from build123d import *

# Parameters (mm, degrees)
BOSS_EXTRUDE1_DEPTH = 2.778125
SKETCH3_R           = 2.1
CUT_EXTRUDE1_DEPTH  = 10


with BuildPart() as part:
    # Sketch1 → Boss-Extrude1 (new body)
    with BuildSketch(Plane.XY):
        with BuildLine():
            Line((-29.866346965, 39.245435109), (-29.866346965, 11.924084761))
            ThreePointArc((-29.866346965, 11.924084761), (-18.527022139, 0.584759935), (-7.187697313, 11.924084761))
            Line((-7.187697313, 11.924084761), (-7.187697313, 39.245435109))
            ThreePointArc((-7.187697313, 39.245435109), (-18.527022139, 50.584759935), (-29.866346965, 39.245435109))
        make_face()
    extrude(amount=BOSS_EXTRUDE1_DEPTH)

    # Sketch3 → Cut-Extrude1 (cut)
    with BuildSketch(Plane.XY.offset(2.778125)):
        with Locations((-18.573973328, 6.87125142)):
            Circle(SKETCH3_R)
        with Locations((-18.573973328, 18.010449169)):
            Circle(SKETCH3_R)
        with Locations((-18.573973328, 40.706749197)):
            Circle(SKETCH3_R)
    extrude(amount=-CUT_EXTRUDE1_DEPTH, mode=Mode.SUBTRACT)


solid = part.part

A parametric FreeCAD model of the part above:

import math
import FreeCAD as App
import Part
import Sketcher

doc = App.newDocument("Part")
params = doc.addObject("Spreadsheet::Sheet", "Params")
for row, (alias, value) in enumerate([
    ("pad1_length", "2.778125 mm"),
    ("sketch2_diameter", "4.2 mm"),
    ("pocket1_length", "10 mm"),
], start=1):
    params.set(f"A{row}", alias)
    params.set(f"B{row}", "=" + value)
    params.setAlias(f"B{row}", alias)

body = doc.addObject("PartDesign::Body", "Body")

sketch1 = body.newObject("Sketcher::SketchObject", "Sketch")
sketch1.AttachmentSupport = (doc.getObject("XY_Plane"), [""])
sketch1.MapMode = "FlatFace"
sketch1.addGeometry([
    Part.LineSegment(App.Vector(-30, 39, 0), App.Vector(-30, 12, 0)),
    Part.ArcOfCircle(Part.Circle(App.Vector(-19, 12, 0), App.Vector(0, 0, 1), 11), math.radians(180), math.radians(360)),
    Part.LineSegment(App.Vector(-7, 12, 0), App.Vector(-7, 39, 0)),
    Part.ArcOfCircle(Part.Circle(App.Vector(-19, 39, 0), App.Vector(0, 0, 1), 11), math.radians(0), math.radians(180)),
], False)
sketch1.addConstraint([
    Sketcher.Constraint("Tangent", 0, 2, 1, 1),
    Sketcher.Constraint("Tangent", 1, 2, 2, 1),
    Sketcher.Constraint("Tangent", 2, 2, 3, 1),
    Sketcher.Constraint("Tangent", 3, 2, 0, 1),
    Sketcher.Constraint("Vertical", 0),
    Sketcher.Constraint("Vertical", 2),
    Sketcher.Constraint("Radius", 1, 11.339325),
    Sketcher.Constraint("DistanceY", 0, 2, 0, 1, 27.32135),
    Sketcher.Constraint("DistanceX", 1, 3, -1, 1, 18.527022),
    Sketcher.Constraint("DistanceY", -1, 1, 1, 3, 11.924085),
])
pad1 = body.newObject("PartDesign::Pad", "Pad")
pad1.Profile = sketch1
pad1.setExpression("Length", "Params.pad1_length")

sketch2 = body.newObject("Sketcher::SketchObject", "Sketch001")
sketch2.AttachmentSupport = (doc.getObject("XY_Plane"), [""])
sketch2.MapMode = "FlatFace"
sketch2.AttachmentOffset = App.Placement(App.Vector(0, 0, 2.778125), App.Rotation())
sketch2.addGeometry([
    Part.Circle(App.Vector(-18.6, 6.9, 0), App.Vector(0, 0, 1), 2.1),
    Part.Circle(App.Vector(-18.6, 18, 0), App.Vector(0, 0, 1), 2.1),
    Part.Circle(App.Vector(-18.6, 40.7, 0), App.Vector(0, 0, 1), 2.1),
], False)
sketch2.addConstraint([
    Sketcher.Constraint("Equal", 0, 1),
    Sketcher.Constraint("Equal", 1, 2),
    Sketcher.Constraint("Vertical", 0, 3, 1, 3),
    Sketcher.Constraint("Vertical", 1, 3, 2, 3),
    Sketcher.Constraint("Diameter", 0, 4.2),
    Sketcher.Constraint("DistanceY", 1, 3, 2, 3, 22.6963),
    Sketcher.Constraint("DistanceY", -1, 1, 0, 3, 6.871251),
    Sketcher.Constraint("DistanceY", -1, 1, 1, 3, 18.010449),
    Sketcher.Constraint("DistanceX", 0, 3, -1, 1, 18.573973),
])
sketch2.setExpression("Constraints[4]", "Params.sketch2_diameter")
pocket1 = body.newObject("PartDesign::Pocket", "Pocket")
pocket1.Profile = sketch2
pocket1.setExpression("Length", "Params.pocket1_length")

doc.recompute()
